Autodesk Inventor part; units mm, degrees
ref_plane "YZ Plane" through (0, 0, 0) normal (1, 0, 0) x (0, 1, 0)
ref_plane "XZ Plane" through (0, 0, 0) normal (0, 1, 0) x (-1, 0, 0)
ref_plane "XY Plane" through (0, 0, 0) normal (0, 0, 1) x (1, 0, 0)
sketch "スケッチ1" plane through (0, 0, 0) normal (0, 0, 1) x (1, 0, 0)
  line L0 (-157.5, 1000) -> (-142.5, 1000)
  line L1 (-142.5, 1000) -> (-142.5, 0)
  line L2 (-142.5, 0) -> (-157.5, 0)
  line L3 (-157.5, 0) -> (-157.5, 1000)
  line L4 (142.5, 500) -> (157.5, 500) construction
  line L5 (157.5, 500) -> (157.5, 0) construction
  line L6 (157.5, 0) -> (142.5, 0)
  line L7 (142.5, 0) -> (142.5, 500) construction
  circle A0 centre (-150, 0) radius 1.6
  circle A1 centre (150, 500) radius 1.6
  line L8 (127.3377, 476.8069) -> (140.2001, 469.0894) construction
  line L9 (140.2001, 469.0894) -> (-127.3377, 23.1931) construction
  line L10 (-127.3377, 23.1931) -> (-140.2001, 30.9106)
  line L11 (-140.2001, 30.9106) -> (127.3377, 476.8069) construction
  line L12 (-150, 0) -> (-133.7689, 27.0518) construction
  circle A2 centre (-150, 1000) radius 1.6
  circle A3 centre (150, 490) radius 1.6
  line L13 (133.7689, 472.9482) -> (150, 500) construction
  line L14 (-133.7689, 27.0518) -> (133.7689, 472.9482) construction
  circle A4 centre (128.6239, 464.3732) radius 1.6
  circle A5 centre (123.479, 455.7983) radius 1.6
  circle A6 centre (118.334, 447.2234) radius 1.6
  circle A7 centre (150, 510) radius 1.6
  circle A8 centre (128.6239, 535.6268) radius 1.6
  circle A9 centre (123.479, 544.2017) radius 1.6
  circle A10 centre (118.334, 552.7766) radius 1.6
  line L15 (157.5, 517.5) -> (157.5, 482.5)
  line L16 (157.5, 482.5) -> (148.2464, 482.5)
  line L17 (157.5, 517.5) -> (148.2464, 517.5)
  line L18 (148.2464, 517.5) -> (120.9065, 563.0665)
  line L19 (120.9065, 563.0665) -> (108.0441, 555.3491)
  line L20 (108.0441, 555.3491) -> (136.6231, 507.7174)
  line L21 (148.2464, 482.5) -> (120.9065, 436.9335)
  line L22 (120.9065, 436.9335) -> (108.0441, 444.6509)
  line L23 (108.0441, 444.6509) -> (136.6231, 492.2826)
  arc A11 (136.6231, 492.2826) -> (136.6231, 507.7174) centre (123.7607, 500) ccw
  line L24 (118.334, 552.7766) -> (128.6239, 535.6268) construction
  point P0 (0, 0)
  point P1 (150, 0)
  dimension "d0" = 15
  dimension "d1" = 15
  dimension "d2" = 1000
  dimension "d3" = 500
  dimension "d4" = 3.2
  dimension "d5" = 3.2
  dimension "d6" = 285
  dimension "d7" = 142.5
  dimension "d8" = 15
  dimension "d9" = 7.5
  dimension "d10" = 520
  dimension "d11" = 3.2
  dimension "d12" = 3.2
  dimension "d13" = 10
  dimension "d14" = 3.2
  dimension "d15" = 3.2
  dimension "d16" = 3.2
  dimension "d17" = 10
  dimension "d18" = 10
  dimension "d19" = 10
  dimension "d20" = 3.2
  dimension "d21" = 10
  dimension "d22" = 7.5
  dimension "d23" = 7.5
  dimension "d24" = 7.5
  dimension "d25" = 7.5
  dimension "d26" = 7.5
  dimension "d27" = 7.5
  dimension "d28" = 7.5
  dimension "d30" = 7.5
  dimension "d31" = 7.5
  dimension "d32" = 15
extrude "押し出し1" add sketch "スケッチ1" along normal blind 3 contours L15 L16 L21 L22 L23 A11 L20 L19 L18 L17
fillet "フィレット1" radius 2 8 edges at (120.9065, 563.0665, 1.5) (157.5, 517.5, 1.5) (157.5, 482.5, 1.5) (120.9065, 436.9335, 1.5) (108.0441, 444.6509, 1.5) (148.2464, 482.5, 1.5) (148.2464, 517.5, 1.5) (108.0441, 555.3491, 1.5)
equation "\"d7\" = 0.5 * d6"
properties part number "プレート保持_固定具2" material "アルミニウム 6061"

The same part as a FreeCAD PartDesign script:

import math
import FreeCAD as App
import Part
import Sketcher
from FreeCAD import Vector
Q = App.Units.Quantity


def edges_at(feature, points):
    """Names of the edges that pass closest to the given points."""
    edges = feature.Shape.Edges
    near = lambda p: min(range(len(edges)), key=lambda i: edges[i].distToShape(Part.Vertex(*p))[0])
    return sorted({f"Edge{near(p) + 1}" for p in points})

doc = App.newDocument("Part")
body = doc.addObject("PartDesign::Body", "Body")

# Sketch on XY plane
sketch1 = doc.addObject("Sketcher::SketchObject", "Sketch")
body.addObject(sketch1)
sketch1.AttachmentSupport = (doc.XY_Plane, [""])
sketch1.MapMode = "FlatFace"
sketch1.addGeometry([
    Part.LineSegment(Vector(157.5, 482.5, 0), Vector(157.5, 517.5, 0)),  # 0
    Part.LineSegment(Vector(157.5, 517.5, 0), Vector(148.2, 517.5, 0)),  # 1
    Part.LineSegment(Vector(148.2, 517.5, 0), Vector(120.9, 563.1, 0)),  # 2
    Part.LineSegment(Vector(120.9, 563.1, 0), Vector(108, 555.3, 0)),  # 3
    Part.LineSegment(Vector(108, 555.3, 0), Vector(136.6, 507.7, 0)),  # 4
    Part.ArcOfCircle(Part.Circle(Vector(123.8, 500, 0), Vector(0, 0, 1), 15), math.radians(-31), math.radians(31)),  # 5
    Part.LineSegment(Vector(136.6, 492.3, 0), Vector(108, 444.7, 0)),  # 6
    Part.LineSegment(Vector(108, 444.7, 0), Vector(120.9, 436.9, 0)),  # 7
    Part.LineSegment(Vector(120.9, 436.9, 0), Vector(148.2, 482.5, 0)),  # 8
    Part.LineSegment(Vector(148.2, 482.5, 0), Vector(157.5, 482.5, 0)),  # 9
    Part.Circle(Vector(118.3, 447.2, 0), Vector(0, 0, 1), 1.6),  # 10
    Part.Circle(Vector(123.5, 455.8, 0), Vector(0, 0, 1), 1.6),  # 11
    Part.Circle(Vector(128.6, 464.4, 0), Vector(0, 0, 1), 1.6),  # 12
    Part.Circle(Vector(150, 490, 0), Vector(0, 0, 1), 1.6),  # 13
    Part.Circle(Vector(123.5, 544.2, 0), Vector(0, 0, 1), 1.6),  # 14
    Part.Circle(Vector(118.3, 552.8, 0), Vector(0, 0, 1), 1.6),  # 15
    Part.Circle(Vector(128.6, 535.6, 0), Vector(0, 0, 1), 1.6),  # 16
    Part.Circle(Vector(150, 500, 0), Vector(0, 0, 1), 1.6),  # 17
    Part.Circle(Vector(150, 510, 0), Vector(0, 0, 1), 1.6),  # 18
], False)
sketch1.addConstraint([
    Sketcher.Constraint("Coincident", 0, 2, 1, 1),
    Sketcher.Constraint("Coincident", 1, 2, 2, 1),
    Sketcher.Constraint("Coincident", 2, 2, 3, 1),
    Sketcher.Constraint("Coincident", 3, 2, 4, 1),
    Sketcher.Constraint("Tangent", 4, 2, 5, 2),
    Sketcher.Constraint("Tangent", 5, 1, 6, 1),
    Sketcher.Constraint("Coincident", 6, 2, 7, 1),
    Sketcher.Constraint("Coincident", 7, 2, 8, 1),
    Sketcher.Constraint("Coincident", 8, 2, 9, 1),
    Sketcher.Constraint("Coincident", 9, 2, 0, 1),
    Sketcher.Constraint("Vertical", 0),
    Sketcher.Constraint("Horizontal", 1),
    Sketcher.Constraint("Horizontal", 9),
    Sketcher.Constraint("Equal", 10, 11),
    Sketcher.Constraint("Equal", 11, 12),
    Sketcher.Constraint("Equal", 12, 13),
    Sketcher.Constraint("Equal", 13, 14),
    Sketcher.Constraint("Equal", 14, 15),
    Sketcher.Constraint("Equal", 15, 16),
    Sketcher.Constraint("Equal", 16, 17),
    Sketcher.Constraint("Equal", 17, 18),
    Sketcher.Constraint("Perpendicular", 2, 3),
    Sketcher.Constraint("Perpendicular", 3, 4),
    Sketcher.Constraint("Perpendicular", 6, 7),
    Sketcher.Constraint("Perpendicular", 7, 8),
    Sketcher.Constraint("Horizontal", 5, 3, 17, 3),
    Sketcher.Constraint("Vertical", 11, 3, 14, 3),
    Sketcher.Constraint("Vertical", 10, 3, 15, 3),
    Sketcher.Constraint("Vertical", 12, 3, 16, 3),
    Sketcher.Constraint("Vertical", 13, 3, 17, 3),
    Sketcher.Constraint("Vertical", 17, 3, 18, 3),
    Sketcher.Constraint("Vertical", 4, 2, 5, 1),
    Sketcher.Constraint("Vertical", 3, 2, 6, 2),
    Sketcher.Constraint("Vertical", 2, 2, 7, 2),
    Sketcher.Constraint("Vertical", 1, 2, 8, 2),
    Sketcher.Constraint("Radius", 5, Q("15 mm")),
    Sketcher.Constraint("Diameter", 10, Q("3.2 mm")),
    Sketcher.Constraint("Distance", 3, Q("15 mm")),
    Sketcher.Constraint("DistanceY", -1, 1, 5, 3, Q("500 mm")),
    Sketcher.Constraint("DistanceY", 13, 3, 5, 3, Q("10 mm")),
    Sketcher.Constraint("DistanceY", 17, 3, 18, 3, Q("10 mm")),
    Sketcher.Constraint("DistanceX", 18, 3, 0, 2, Q("7.5 mm")),
    Sketcher.Constraint("DistanceY", 18, 3, 0, 2, Q("7.5 mm")),
    Sketcher.Constraint("DistanceX", -1, 1, 13, 3, Q("150 mm")),
    Sketcher.Constraint("DistanceX", 10, 3, 12, 3, Q("10.29 mm")),
    Sketcher.Constraint("DistanceY", 15, 3, 2, 2, Q("10.29 mm")),
    Sketcher.Constraint("DistanceX", 2, 2, 1, 2, Q("27.34 mm")),
    Sketcher.Constraint("DistanceX", 3, 2, 15, 3, Q("10.29 mm")),
    Sketcher.Constraint("DistanceY", 7, 2, 10, 3, Q("10.29 mm")),
    Sketcher.Constraint("DistanceX", 1, 2, 1, 1, Q("9.2536 mm")),
    Sketcher.Constraint("DistanceX", -1, 1, 10, 3, Q("118.334 mm")),
    Sketcher.Constraint("DistanceX", -1, 1, 11, 3, Q("123.479 mm")),
    Sketcher.Constraint("DistanceY", 10, 3, 11, 3, Q("8.575 mm")),
    Sketcher.Constraint("DistanceY", 11, 3, 12, 3, Q("8.575 mm")),
    Sketcher.Constraint("DistanceY", 14, 3, 15, 3, Q("8.575 mm")),
    Sketcher.Constraint("DistanceY", 16, 3, 14, 3, Q("8.575 mm")),
])
pad1 = doc.addObject("PartDesign::Pad", "Pad")
body.addObject(pad1)
pad1.Profile = sketch1
pad1.Length = 3
doc.recompute()

fillet = doc.addObject("PartDesign::Fillet", "Fillet")
body.addObject(fillet)
fillet.Base = (pad1, edges_at(pad1, [
    (120.906, 563.067, 1.5),
    (157.5, 517.5, 1.5),
    (157.5, 482.5, 1.5),
    (120.906, 436.933, 1.5),
    (108.044, 444.651, 1.5),
    (148.246, 482.5, 1.5),
    (148.246, 517.5, 1.5),
    (108.044, 555.349, 1.5),
]))
fillet.Radius = 2

doc.recompute()
